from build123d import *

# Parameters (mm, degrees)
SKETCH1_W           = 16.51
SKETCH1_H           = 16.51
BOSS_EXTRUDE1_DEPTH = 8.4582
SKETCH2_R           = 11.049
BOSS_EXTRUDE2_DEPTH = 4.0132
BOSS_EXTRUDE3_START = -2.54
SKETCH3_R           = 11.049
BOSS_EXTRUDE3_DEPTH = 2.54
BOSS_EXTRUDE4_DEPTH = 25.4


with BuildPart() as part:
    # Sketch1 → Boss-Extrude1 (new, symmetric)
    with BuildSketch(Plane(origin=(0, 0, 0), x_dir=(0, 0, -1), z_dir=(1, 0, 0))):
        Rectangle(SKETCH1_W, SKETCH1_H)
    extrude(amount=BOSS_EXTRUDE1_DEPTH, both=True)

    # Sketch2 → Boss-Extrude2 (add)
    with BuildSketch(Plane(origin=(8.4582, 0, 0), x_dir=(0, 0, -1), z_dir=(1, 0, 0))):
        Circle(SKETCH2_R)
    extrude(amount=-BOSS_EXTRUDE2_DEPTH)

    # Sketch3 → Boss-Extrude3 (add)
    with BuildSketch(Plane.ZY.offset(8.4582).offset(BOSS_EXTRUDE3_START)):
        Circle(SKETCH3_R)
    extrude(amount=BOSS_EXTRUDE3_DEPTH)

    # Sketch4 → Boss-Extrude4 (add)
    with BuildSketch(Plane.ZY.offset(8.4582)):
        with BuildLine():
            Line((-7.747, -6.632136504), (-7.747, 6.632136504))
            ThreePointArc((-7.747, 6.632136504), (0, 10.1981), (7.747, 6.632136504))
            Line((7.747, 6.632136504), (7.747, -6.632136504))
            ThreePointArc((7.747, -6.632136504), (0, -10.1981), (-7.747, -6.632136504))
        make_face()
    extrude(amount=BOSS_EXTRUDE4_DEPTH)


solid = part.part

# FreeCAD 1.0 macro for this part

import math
import FreeCAD as App
import Part
import Sketcher
Q = App.Units.Quantity

doc = App.newDocument("Part")
body = doc.addObject("PartDesign::Body", "Body")

# Sketch on YZ plane
sketch1 = body.newObject("Sketcher::SketchObject", "Sketch")
sketch1.AttachmentSupport = (doc.getObject("YZ_Plane"), [""])
sketch1.MapMode = "FlatFace"
sketch1.addGeometry([
    Part.LineSegment(App.Vector(8, 8, 0), App.Vector(-8, 8, 0)),
    Part.LineSegment(App.Vector(-8, 8, 0), App.Vector(-8, -8, 0)),
    Part.LineSegment(App.Vector(-8, -8, 0), App.Vector(8, -8, 0)),
    Part.LineSegment(App.Vector(8, -8, 0), App.Vector(8, 8, 0)),
], False)
sketch1.addConstraint([
    Sketcher.Constraint("Coincident", 0, 2, 1, 1),
    Sketcher.Constraint("Coincident", 1, 2, 2, 1),
    Sketcher.Constraint("Coincident", 2, 2, 3, 1),
    Sketcher.Constraint("Coincident", 3, 2, 0, 1),
    Sketcher.Constraint("Horizontal", 0),
    Sketcher.Constraint("Vertical", 1),
    Sketcher.Constraint("Horizontal", 2),
    Sketcher.Constraint("Vertical", 3),
    Sketcher.Constraint("Symmetric", 0, 2, 2, 2, -1, 1),
    Sketcher.Constraint("Equal", 2, 1),
    Sketcher.Constraint("DistanceX", 0, 2, 0, 1, Q("0.65 in")),
])
pad1 = body.newObject("PartDesign::Pad", "Pad")
pad1.Profile = sketch1
pad1.Length = Q("0.666 in")
pad1.Midplane = True

# Sketch on YZ plane
sketch2 = body.newObject("Sketcher::SketchObject", "Sketch001")
sketch2.AttachmentSupport = (doc.getObject("YZ_Plane"), [""])
sketch2.MapMode = "FlatFace"
sketch2.AttachmentOffset = App.Placement(App.Vector(0, 0, 0.333 * 25.4), App.Rotation())
sketch2.addGeometry(Part.Circle(App.Vector(0, 0, 0), App.Vector(0, 0, 1), 11), False)
sketch2.addConstraint([
    Sketcher.Constraint("Coincident", 0, 3, -1, 1),
    Sketcher.Constraint("Diameter", 0, Q("0.87 in")),
])
pad2 = body.newObject("PartDesign::Pad", "Pad001")
pad2.Profile = sketch2
pad2.Length = Q("0.158 in")
pad2.Reversed = True

# Sketch on YZ plane
sketch3 = body.newObject("Sketcher::SketchObject", "Sketch002")
sketch3.AttachmentSupport = (doc.getObject("YZ_Plane"), [""])
sketch3.MapMode = "FlatFace"
sketch3.AttachmentOffset = App.Placement(App.Vector(0, 0, -0.233 * 25.4), App.Rotation())
sketch3.addGeometry(Part.Circle(App.Vector(0, 0, 0), App.Vector(0, 0, 1), 11), False)
sketch3.addConstraint([
    Sketcher.Constraint("Coincident", 0, 3, -1, 1),
    Sketcher.Constraint("Diameter", 0, Q("0.87 in")),
])
pad3 = body.newObject("PartDesign::Pad", "Pad002")
pad3.Profile = sketch3
pad3.Length = Q("0.1 in")
pad3.Reversed = True

# Sketch on YZ plane
sketch4 = body.newObject("Sketcher::SketchObject", "Sketch003")
sketch4.AttachmentSupport = (doc.getObject("YZ_Plane"), [""])
sketch4.MapMode = "FlatFace"
sketch4.AttachmentOffset = App.Placement(App.Vector(0, 0, -0.333 * 25.4), App.Rotation())
sketch4.addGeometry([
    Part.LineSegment(App.Vector(7, -8, 0), App.Vector(-7, -8, 0)),
    Part.ArcOfCircle(Part.Circle(App.Vector(0, 0, 0), App.Vector(0, 0, 1), 10), math.radians(131), math.radians(229)),
    Part.LineSegment(App.Vector(-7, 8, 0), App.Vector(7, 8, 0)),
    Part.ArcOfCircle(Part.Circle(App.Vector(0, 0, 0), App.Vector(0, 0, 1), 10), math.radians(-49), math.radians(49)),
], False)
sketch4.addConstraint([
    Sketcher.Constraint("Coincident", 0, 2, 1, 2),
    Sketcher.Constraint("Coincident", 1, 1, 2, 1),
    Sketcher.Constraint("Coincident", 2, 2, 3, 2),
    Sketcher.Constraint("Coincident", 3, 1, 0, 1),
    Sketcher.Constraint("Horizontal", 0),
    Sketcher.Constraint("Horizontal", 2),
    Sketcher.Constraint("Coincident", 1, 3, -1, 1),
    Sketcher.Constraint("Coincident", 3, 3, -1, 1),
    Sketcher.Constraint("Equal", 1, 3),
    Sketcher.Constraint("Vertical", 0, 2, 1, 1),
    Sketcher.Constraint("Radius", 1, Q("0.4015 in")),
    Sketcher.Constraint("DistanceY", 0, 2, 1, 1, Q("0.61 in")),
])
pad4 = body.newObject("PartDesign::Pad", "Pad003")
pad4.Profile = sketch4
pad4.Length = Q("1 in")
pad4.Reversed = True

doc.recompute()
